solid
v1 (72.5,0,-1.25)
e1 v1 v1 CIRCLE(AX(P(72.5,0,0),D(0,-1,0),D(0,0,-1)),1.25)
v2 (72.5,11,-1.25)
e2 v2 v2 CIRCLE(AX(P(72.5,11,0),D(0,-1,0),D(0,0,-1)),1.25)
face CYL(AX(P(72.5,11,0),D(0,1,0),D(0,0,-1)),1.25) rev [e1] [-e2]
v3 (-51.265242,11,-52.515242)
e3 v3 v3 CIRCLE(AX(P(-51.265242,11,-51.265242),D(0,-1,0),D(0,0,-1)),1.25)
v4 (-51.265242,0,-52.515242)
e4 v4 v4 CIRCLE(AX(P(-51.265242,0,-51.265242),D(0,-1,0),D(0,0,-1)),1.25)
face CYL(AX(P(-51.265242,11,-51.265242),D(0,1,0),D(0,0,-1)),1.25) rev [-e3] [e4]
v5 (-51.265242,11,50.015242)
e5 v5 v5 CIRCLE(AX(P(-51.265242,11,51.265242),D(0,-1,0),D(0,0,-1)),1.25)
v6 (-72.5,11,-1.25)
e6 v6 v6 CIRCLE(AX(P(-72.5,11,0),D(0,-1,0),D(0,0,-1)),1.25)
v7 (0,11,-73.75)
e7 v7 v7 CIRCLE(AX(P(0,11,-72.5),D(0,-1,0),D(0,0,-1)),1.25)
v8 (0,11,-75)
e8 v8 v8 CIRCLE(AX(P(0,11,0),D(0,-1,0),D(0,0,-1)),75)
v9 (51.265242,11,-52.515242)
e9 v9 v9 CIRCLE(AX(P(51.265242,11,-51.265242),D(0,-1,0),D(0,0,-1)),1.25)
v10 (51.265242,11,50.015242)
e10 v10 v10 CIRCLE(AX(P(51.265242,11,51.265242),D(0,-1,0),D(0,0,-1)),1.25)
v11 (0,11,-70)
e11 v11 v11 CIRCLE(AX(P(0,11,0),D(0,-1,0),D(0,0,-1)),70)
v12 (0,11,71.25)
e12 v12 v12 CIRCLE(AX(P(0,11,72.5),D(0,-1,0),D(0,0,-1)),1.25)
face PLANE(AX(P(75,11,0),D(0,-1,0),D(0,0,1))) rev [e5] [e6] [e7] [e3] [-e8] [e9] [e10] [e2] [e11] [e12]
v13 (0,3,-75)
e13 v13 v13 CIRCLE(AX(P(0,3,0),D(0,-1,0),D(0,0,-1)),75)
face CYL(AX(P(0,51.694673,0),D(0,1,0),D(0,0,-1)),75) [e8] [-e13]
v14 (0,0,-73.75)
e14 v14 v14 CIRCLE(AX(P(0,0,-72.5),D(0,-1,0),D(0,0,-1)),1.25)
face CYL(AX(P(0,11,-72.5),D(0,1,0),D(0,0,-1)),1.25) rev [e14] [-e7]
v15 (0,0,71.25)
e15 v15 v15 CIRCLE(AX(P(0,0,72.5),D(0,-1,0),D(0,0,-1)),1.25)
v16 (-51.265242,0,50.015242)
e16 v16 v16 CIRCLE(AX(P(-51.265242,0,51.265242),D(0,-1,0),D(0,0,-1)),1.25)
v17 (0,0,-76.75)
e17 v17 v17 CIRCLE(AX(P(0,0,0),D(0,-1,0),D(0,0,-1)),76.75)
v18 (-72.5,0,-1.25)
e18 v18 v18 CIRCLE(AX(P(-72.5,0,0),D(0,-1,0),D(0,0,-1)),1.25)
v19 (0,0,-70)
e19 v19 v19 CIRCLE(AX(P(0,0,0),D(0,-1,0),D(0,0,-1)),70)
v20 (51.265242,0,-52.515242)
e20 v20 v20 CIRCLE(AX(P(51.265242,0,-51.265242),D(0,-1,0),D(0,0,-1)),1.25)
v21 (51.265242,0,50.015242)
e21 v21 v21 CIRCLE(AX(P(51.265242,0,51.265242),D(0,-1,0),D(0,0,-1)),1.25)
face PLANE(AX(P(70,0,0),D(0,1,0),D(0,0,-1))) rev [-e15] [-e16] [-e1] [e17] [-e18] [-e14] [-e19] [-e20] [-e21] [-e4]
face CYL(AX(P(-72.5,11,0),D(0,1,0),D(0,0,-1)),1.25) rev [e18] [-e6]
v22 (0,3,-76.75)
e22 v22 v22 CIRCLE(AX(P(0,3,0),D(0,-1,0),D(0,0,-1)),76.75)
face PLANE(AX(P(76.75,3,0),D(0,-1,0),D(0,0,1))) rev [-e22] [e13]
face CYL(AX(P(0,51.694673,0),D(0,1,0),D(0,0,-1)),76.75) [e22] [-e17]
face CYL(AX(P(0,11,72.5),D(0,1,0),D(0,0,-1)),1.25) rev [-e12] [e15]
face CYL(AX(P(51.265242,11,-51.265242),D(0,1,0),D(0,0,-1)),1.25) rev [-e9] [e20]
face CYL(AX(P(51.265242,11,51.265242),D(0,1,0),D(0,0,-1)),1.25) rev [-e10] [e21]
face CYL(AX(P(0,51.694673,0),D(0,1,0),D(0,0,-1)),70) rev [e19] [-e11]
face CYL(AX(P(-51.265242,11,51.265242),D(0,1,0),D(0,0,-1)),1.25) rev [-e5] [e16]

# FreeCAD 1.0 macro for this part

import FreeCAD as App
import Part
import Sketcher
from FreeCAD import Vector


def add_polygon(sketch, points):
    """Adds a closed chain of lines whose ends are joined by coincident constraints."""
    first, n = sketch.GeometryCount, len(points)
    for a, b in zip(points, points[1:] + points[:1]):
        sketch.addGeometry(Part.LineSegment(App.Vector(*a, 0), App.Vector(*b, 0)), False)
    for i in range(n):
        sketch.addConstraint(Sketcher.Constraint("Coincident", first + i, 2, first + (i + 1) % n, 1))

doc = App.newDocument("Part")
params = doc.addObject("Spreadsheet::Sheet", "Params")
for row, (alias, value) in enumerate([
    ("sketch1_width", "5 mm"),
    ("sketch1_height", "3 mm"),
    ("sketch1_height2", "8 mm"),
    ("sketch1_width2", "6.75 mm"),
    ("revolution_angle", "360 deg"),
    ("sketch2_diameter", "2.5 mm"),
    ("hole_diameter", "2.5 mm"),
], start=1):
    params.set(f"A{row}", alias)
    params.set(f"B{row}", "=" + value)
    params.setAlias(f"B{row}", alias)

body = doc.addObject("PartDesign::Body", "Body")

sketch1 = doc.addObject("Sketcher::SketchObject", "Sketch")
body.addObject(sketch1)
sketch1.AttachmentSupport = (doc.XY_Plane, [""])
sketch1.MapMode = "FlatFace"
add_polygon(sketch1, [(70, 0), (76.75, 0), (76.75, 3), (75, 3), (75, 11), (70, 11)])
sketch1.addConstraint(Sketcher.Constraint("Horizontal", 0))
sketch1.addConstraint(Sketcher.Constraint("Vertical", 1))
sketch1.addConstraint(Sketcher.Constraint("Horizontal", 2))
sketch1.addConstraint(Sketcher.Constraint("Vertical", 3))
sketch1.addConstraint(Sketcher.Constraint("Horizontal", 4))
sketch1.addConstraint(Sketcher.Constraint("Vertical", 5))
sketch1.addConstraint(Sketcher.Constraint("PointOnObject", 0, 2, -1))
sketch1.addConstraint(Sketcher.Constraint("DistanceX", 4, 2, 4, 1, 5.0))
sketch1.addConstraint(Sketcher.Constraint("DistanceY", 1, 1, 1, 2, 3.0))
sketch1.addConstraint(Sketcher.Constraint("DistanceY", 3, 1, 3, 2, 8.0))
sketch1.addConstraint(Sketcher.Constraint("DistanceX", -1, 1, 2, 2, 75.0))
sketch1.addConstraint(Sketcher.Constraint("DistanceX", 0, 1, 0, 2, 6.75))
sketch1.setExpression("Constraints[13]", "Params.sketch1_width")
sketch1.setExpression("Constraints[14]", "Params.sketch1_height")
sketch1.setExpression("Constraints[15]", "Params.sketch1_height2")
sketch1.setExpression("Constraints[17]", "Params.sketch1_width2")
revolution = doc.addObject("PartDesign::Revolution", "Revolution")
body.addObject(revolution)
revolution.Profile = sketch1
revolution.ReferenceAxis = (sketch1, ["V_Axis"])
revolution.setExpression("Angle", "Params.revolution_angle")

sketch2 = doc.addObject("Sketcher::SketchObject", "Sketch001")
body.addObject(sketch2)
sketch2.AttachmentSupport = (doc.XZ_Plane, [""])
sketch2.MapMode = "FlatFace"
sketch2.AttachmentOffset = App.Placement(Vector(0, 0, -11), App.Rotation())
sketch2.addGeometry(Part.Circle(Vector(-51.265242, -51.265242, 0), Vector(0, 0, 1), 1.25), False)
sketch2.addGeometry(Part.Circle(Vector(0, -72.5, 0), Vector(0, 0, 1), 1.25), False)
sketch2.addGeometry(Part.Circle(Vector(51.265242, -51.265242, 0), Vector(0, 0, 1), 1.25), False)
sketch2.addGeometry(Part.Circle(Vector(72.5, 0, 0), Vector(0, 0, 1), 1.25), False)
sketch2.addGeometry(Part.Circle(Vector(51.265242, 51.265242, 0), Vector(0, 0, 1), 1.25), False)
sketch2.addGeometry(Part.Circle(Vector(0, 72.5, 0), Vector(0, 0, 1), 1.25), False)
sketch2.addGeometry(Part.Circle(Vector(-51.265242, 51.265242, 0), Vector(0, 0, 1), 1.25), False)
sketch2.addGeometry(Part.Circle(Vector(-72.5, 0, 0), Vector(0, 0, 1), 1.25), False)
sketch2.addConstraint(Sketcher.Constraint("Equal", 0, 1))
sketch2.addConstraint(Sketcher.Constraint("Equal", 1, 2))
sketch2.addConstraint(Sketcher.Constraint("Equal", 2, 3))
sketch2.addConstraint(Sketcher.Constraint("Equal", 3, 4))
sketch2.addConstraint(Sketcher.Constraint("Equal", 4, 5))
sketch2.addConstraint(Sketcher.Constraint("Equal", 5, 6))
sketch2.addConstraint(Sketcher.Constraint("Equal", 6, 7))
sketch2.addConstraint(Sketcher.Constraint("Symmetric", 0, 3, 4, 3, -1, 1))
sketch2.addConstraint(Sketcher.Constraint("Symmetric", 1, 3, 5, 3, -1, 1))
sketch2.addConstraint(Sketcher.Constraint("Symmetric", 2, 3, 6, 3, -1, 1))
sketch2.addConstraint(Sketcher.Constraint("Symmetric", 3, 3, 7, 3, -1, 1))
sketch2.addConstraint(Sketcher.Constraint("Symmetric", 0, 3, 2, 3, -2))
sketch2.addConstraint(Sketcher.Constraint("PointOnObject", 1, 3, -2))
sketch2.addConstraint(Sketcher.Constraint("PointOnObject", 3, 3, -1))
sketch2.addConstraint(Sketcher.Constraint("Diameter", 0, 2.5))
sketch2.addConstraint(Sketcher.Constraint("DistanceY", 1, 3, 5, 3, 145.0))
sketch2.addConstraint(Sketcher.Constraint("DistanceX", -1, 1, 3, 3, 72.5))
sketch2.addConstraint(Sketcher.Constraint("DistanceX", 0, 3, -1, 1, 51.265242))
sketch2.addConstraint(Sketcher.Constraint("DistanceY", 0, 3, -1, 1, 51.265242))
sketch2.setExpression("Constraints[14]", "Params.sketch2_diameter")
doc.recompute()
hole = doc.addObject("PartDesign::Hole", "Hole")
body.addObject(hole)
hole.Profile = sketch2
hole.ThreadType = "None"
hole.setExpression("Diameter", "Params.hole_diameter")
hole.DepthType = "ThroughAll"
hole.Reversed = True

doc.recompute()
